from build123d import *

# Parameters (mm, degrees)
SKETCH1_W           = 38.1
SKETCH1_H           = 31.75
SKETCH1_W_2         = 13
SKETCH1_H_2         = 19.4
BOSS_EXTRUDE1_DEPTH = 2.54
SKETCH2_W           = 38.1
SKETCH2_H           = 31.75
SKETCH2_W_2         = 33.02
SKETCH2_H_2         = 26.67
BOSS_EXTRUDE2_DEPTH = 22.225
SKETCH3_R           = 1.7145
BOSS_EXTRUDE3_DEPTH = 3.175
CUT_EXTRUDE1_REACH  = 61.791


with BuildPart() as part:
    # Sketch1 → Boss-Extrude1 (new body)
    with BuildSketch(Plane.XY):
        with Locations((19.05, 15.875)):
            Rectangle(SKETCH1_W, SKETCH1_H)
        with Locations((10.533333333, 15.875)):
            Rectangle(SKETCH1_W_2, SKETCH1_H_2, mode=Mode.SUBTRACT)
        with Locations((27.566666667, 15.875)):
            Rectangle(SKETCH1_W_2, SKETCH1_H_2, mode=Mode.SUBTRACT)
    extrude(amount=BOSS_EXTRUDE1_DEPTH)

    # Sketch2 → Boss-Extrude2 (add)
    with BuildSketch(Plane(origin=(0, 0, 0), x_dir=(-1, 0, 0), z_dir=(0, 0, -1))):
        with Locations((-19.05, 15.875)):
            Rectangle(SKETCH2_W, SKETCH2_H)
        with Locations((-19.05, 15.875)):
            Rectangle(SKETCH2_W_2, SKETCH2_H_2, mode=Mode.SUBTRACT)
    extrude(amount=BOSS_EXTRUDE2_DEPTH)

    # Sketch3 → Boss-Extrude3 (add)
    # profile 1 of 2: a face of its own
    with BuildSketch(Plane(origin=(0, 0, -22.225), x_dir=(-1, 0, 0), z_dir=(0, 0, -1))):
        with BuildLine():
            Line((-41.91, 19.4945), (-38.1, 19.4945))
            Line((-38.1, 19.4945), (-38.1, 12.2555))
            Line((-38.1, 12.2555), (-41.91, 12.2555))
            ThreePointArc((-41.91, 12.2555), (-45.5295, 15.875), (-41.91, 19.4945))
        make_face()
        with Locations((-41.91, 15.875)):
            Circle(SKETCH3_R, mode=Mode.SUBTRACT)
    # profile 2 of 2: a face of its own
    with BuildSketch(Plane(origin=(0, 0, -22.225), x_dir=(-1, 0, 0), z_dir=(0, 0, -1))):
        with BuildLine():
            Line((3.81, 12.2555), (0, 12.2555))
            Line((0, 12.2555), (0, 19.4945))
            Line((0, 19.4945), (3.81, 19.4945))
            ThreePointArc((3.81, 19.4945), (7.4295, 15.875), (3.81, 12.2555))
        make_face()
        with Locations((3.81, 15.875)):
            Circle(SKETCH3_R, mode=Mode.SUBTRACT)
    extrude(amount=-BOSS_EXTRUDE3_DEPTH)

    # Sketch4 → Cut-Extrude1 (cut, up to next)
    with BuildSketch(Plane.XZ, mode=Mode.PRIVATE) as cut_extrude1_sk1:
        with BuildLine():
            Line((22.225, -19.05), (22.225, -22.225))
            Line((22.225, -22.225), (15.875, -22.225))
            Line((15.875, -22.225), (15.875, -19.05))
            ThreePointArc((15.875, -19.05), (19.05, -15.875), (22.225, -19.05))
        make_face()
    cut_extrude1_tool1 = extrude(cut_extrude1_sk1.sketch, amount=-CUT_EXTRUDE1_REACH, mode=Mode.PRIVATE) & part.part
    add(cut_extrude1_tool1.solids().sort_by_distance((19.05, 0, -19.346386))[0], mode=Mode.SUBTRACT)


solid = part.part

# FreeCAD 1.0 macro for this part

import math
import FreeCAD as App
import Part
import Sketcher

V = App.Vector
Q = App.Units.Quantity

doc = App.newDocument("Part")
body = doc.addObject("PartDesign::Body", "Body")

sketch1 = doc.addObject("Sketcher::SketchObject", "Sketch")
body.addObject(sketch1)
sketch1.AttachmentSupport = (doc.XY_Plane, [""])
sketch1.MapMode = "FlatFace"
sketch1.addGeometry([
    Part.LineSegment(V(0, 32, 0), V(0, 0, 0)),
    Part.LineSegment(V(0, 0, 0), V(38, 0, 0)),
    Part.LineSegment(V(38, 0, 0), V(38, 32, 0)),
    Part.LineSegment(V(38, 32, 0), V(0, 32, 0)),
    Part.LineSegment(V(17, 6, 0), V(4, 6, 0)),
    Part.LineSegment(V(4, 6, 0), V(4, 26, 0)),
    Part.LineSegment(V(4, 26, 0), V(17, 26, 0)),
    Part.LineSegment(V(17, 26, 0), V(17, 6, 0)),
    Part.LineSegment(V(34, 6, 0), V(21, 6, 0)),
    Part.LineSegment(V(21, 6, 0), V(21, 26, 0)),
    Part.LineSegment(V(21, 26, 0), V(34, 26, 0)),
    Part.LineSegment(V(34, 26, 0), V(34, 6, 0)),
], False)
sketch1.addConstraint([
    Sketcher.Constraint("Coincident", 0, 2, 1, 1),
    Sketcher.Constraint("Coincident", 1, 2, 2, 1),
    Sketcher.Constraint("Coincident", 2, 2, 3, 1),
    Sketcher.Constraint("Coincident", 3, 2, 0, 1),
    Sketcher.Constraint("Coincident", 4, 2, 5, 1),
    Sketcher.Constraint("Coincident", 5, 2, 6, 1),
    Sketcher.Constraint("Coincident", 6, 2, 7, 1),
    Sketcher.Constraint("Coincident", 7, 2, 4, 1),
    Sketcher.Constraint("Coincident", 8, 2, 9, 1),
    Sketcher.Constraint("Coincident", 9, 2, 10, 1),
    Sketcher.Constraint("Coincident", 10, 2, 11, 1),
    Sketcher.Constraint("Coincident", 11, 2, 8, 1),
    Sketcher.Constraint("Vertical", 0),
    Sketcher.Constraint("Horizontal", 1),
    Sketcher.Constraint("Vertical", 2),
    Sketcher.Constraint("Horizontal", 3),
    Sketcher.Constraint("Horizontal", 4),
    Sketcher.Constraint("Vertical", 5),
    Sketcher.Constraint("Horizontal", 6),
    Sketcher.Constraint("Vertical", 7),
    Sketcher.Constraint("Horizontal", 8),
    Sketcher.Constraint("Vertical", 9),
    Sketcher.Constraint("Horizontal", 10),
    Sketcher.Constraint("Vertical", 11),
    Sketcher.Constraint("Coincident", 0, 2, -1, 1),
    Sketcher.Constraint("Horizontal", 7, 2, 8, 2),
    Sketcher.Constraint("Horizontal", 6, 2, 9, 2),
    Sketcher.Constraint("Equal", 6, 8),
    Sketcher.Constraint("DistanceX", 1, 1, 1, 2, Q("1.5 in")),
    Sketcher.Constraint("DistanceY", 0, 2, 0, 1, Q("1.25 in")),
    Sketcher.Constraint("DistanceX", 4, 2, 4, 1, Q("13 mm")),
    Sketcher.Constraint("DistanceY", 5, 1, 5, 2, Q("19.4 mm")),
    Sketcher.Constraint("DistanceY", -1, 1, 4, 2, Q("6.175 mm")),
    Sketcher.Constraint("DistanceX", -1, 1, 4, 2, Q("4.033333 mm")),
    Sketcher.Constraint("DistanceX", -1, 1, 8, 2, Q("21.066667 mm")),
])
pad1 = doc.addObject("PartDesign::Pad", "Pad")
body.addObject(pad1)
pad1.Profile = sketch1
pad1.Length = Q("0.1 in")

sketch2 = doc.addObject("Sketcher::SketchObject", "Sketch001")
body.addObject(sketch2)
sketch2.AttachmentSupport = (doc.XY_Plane, [""])
sketch2.MapMode = "FlatFace"
sketch2.addGeometry([
    Part.LineSegment(V(38, 32, 0), V(38, 0, 0)),
    Part.LineSegment(V(38, 0, 0), V(0, 0, 0)),
    Part.LineSegment(V(0, 0, 0), V(0, 32, 0)),
    Part.LineSegment(V(0, 32, 0), V(38, 32, 0)),
    Part.LineSegment(V(3, 3, 0), V(36, 3, 0)),
    Part.LineSegment(V(36, 3, 0), V(36, 29, 0)),
    Part.LineSegment(V(36, 29, 0), V(3, 29, 0)),
    Part.LineSegment(V(3, 29, 0), V(3, 3, 0)),
], False)
sketch2.addConstraint([
    Sketcher.Constraint("Coincident", 0, 2, 1, 1),
    Sketcher.Constraint("Coincident", 1, 2, 2, 1),
    Sketcher.Constraint("Coincident", 2, 2, 3, 1),
    Sketcher.Constraint("Coincident", 3, 2, 0, 1),
    Sketcher.Constraint("Coincident", 4, 2, 5, 1),
    Sketcher.Constraint("Coincident", 5, 2, 6, 1),
    Sketcher.Constraint("Coincident", 6, 2, 7, 1),
    Sketcher.Constraint("Coincident", 7, 2, 4, 1),
    Sketcher.Constraint("Vertical", 0),
    Sketcher.Constraint("Horizontal", 1),
    Sketcher.Constraint("Vertical", 2),
    Sketcher.Constraint("Horizontal", 3),
    Sketcher.Constraint("Horizontal", 4),
    Sketcher.Constraint("Vertical", 5),
    Sketcher.Constraint("Horizontal", 6),
    Sketcher.Constraint("Vertical", 7),
    Sketcher.Constraint("Coincident", 1, 2, -1, 1),
    Sketcher.Constraint("DistanceX", 1, 2, 1, 1, Q("1.5 in")),
    Sketcher.Constraint("DistanceX", 4, 1, 4, 2, Q("1.3 in")),
    Sketcher.Constraint("DistanceY", 0, 2, 0, 1, Q("1.25 in")),
    Sketcher.Constraint("DistanceY", 5, 1, 5, 2, Q("1.05 in")),
    Sketcher.Constraint("DistanceX", -1, 1, 4, 2, Q("1.4 in")),
    Sketcher.Constraint("DistanceY", -1, 1, 4, 2, Q("0.1 in")),
])
pad2 = doc.addObject("PartDesign::Pad", "Pad001")
body.addObject(pad2)
pad2.Profile = sketch2
pad2.Length = Q("0.875 in")
pad2.Reversed = True

sketch3 = doc.addObject("Sketcher::SketchObject", "Sketch002")
body.addObject(sketch3)
sketch3.AttachmentSupport = (doc.XY_Plane, [""])
sketch3.MapMode = "FlatFace"
sketch3.AttachmentOffset = App.Placement(V(0, 0, -0.875 * 25.4), App.Rotation())
sketch3.addGeometry([
    Part.LineSegment(V(38.1, 19.5, 0), V(41.9, 19.5, 0)),
    Part.ArcOfCircle(Part.Circle(V(41.9, 15.9, 0), V(0, 0, 1), 3.6), math.radians(-90), math.radians(90)),
    Part.LineSegment(V(41.9, 12.3, 0), V(38.1, 12.3, 0)),
    Part.LineSegment(V(38.1, 12.3, 0), V(38.1, 19.5, 0)),
    Part.Circle(V(41.9, 15.9, 0), V(0, 0, 1), 1.7),
    Part.LineSegment(V(0, 12.3, 0), V(-3.8, 12.3, 0)),
    Part.ArcOfCircle(Part.Circle(V(-3.8, 15.9, 0), V(0, 0, 1), 3.6), math.radians(90), math.radians(270)),
    Part.LineSegment(V(-3.8, 19.5, 0), V(0, 19.5, 0)),
    Part.LineSegment(V(0, 19.5, 0), V(0, 12.3, 0)),
    Part.Circle(V(-3.8, 15.9, 0), V(0, 0, 1), 1.7),
], False)
sketch3.addConstraint([
    Sketcher.Constraint("Tangent", 0, 2, 1, 2),
    Sketcher.Constraint("Tangent", 1, 1, 2, 1),
    Sketcher.Constraint("Coincident", 2, 2, 3, 1),
    Sketcher.Constraint("Coincident", 3, 2, 0, 1),
    Sketcher.Constraint("Tangent", 5, 2, 6, 2),
    Sketcher.Constraint("Tangent", 6, 1, 7, 1),
    Sketcher.Constraint("Coincident", 7, 2, 8, 1),
    Sketcher.Constraint("Coincident", 8, 2, 5, 1),
    Sketcher.Constraint("Horizontal", 0),
    Sketcher.Constraint("Horizontal", 2),
    Sketcher.Constraint("Vertical", 3),
    Sketcher.Constraint("Horizontal", 5),
    Sketcher.Constraint("Horizontal", 7),
    Sketcher.Constraint("Vertical", 8),
    Sketcher.Constraint("Coincident", 4, 3, 1, 3),
    Sketcher.Constraint("Coincident", 9, 3, 6, 3),
    Sketcher.Constraint("Equal", 1, 6),
    Sketcher.Constraint("Equal", 4, 9),
    Sketcher.Constraint("PointOnObject", 7, 2, -2),
    Sketcher.Constraint("Horizontal", 4, 3, 6, 3),
    Sketcher.Constraint("Equal", 2, 5),
    Sketcher.Constraint("Diameter", 4, Q("0.135 in")),
    Sketcher.Constraint("DistanceX", 0, 1, 0, 2, Q("0.15 in")),
    Sketcher.Constraint("DistanceX", -1, 1, 2, 2, Q("1.5 in")),
    Sketcher.Constraint("Radius", 1, Q("0.1425 in")),
    Sketcher.Constraint("DistanceY", -1, 1, 1, 3, Q("0.625 in")),
])
pad3 = doc.addObject("PartDesign::Pad", "Pad002")
body.addObject(pad3)
pad3.Profile = sketch3
pad3.Length = Q("0.125 in")

sketch4 = doc.addObject("Sketcher::SketchObject", "Sketch003")
body.addObject(sketch4)
sketch4.AttachmentSupport = (doc.XZ_Plane, [""])
sketch4.MapMode = "FlatFace"
sketch4.addGeometry([
    Part.LineSegment(V(22.2, -22.2, 0), V(22.2, -19.1, 0)),
    Part.ArcOfCircle(Part.Circle(V(19.1, -19.1, 0), V(0, 0, 1), 3.2), math.radians(0), math.radians(180)),
    Part.LineSegment(V(15.9, -19.1, 0), V(15.9, -22.2, 0)),
    Part.LineSegment(V(15.9, -22.2, 0), V(22.2, -22.2, 0)),
], False)
sketch4.addConstraint([
    Sketcher.Constraint("Tangent", 0, 2, 1, 1),
    Sketcher.Constraint("Tangent", 1, 2, 2, 1),
    Sketcher.Constraint("Coincident", 2, 2, 3, 1),
    Sketcher.Constraint("Coincident", 3, 2, 0, 1),
    Sketcher.Constraint("Vertical", 0),
    Sketcher.Constraint("Vertical", 2),
    Sketcher.Constraint("Horizontal", 3),
    Sketcher.Constraint("Radius", 1, Q("0.125 in")),
    Sketcher.Constraint("DistanceY", 0, 1, 0, 2, Q("0.125 in")),
    Sketcher.Constraint("DistanceX", -1, 1, 1, 3, Q("0.75 in")),
    Sketcher.Constraint("DistanceY", 1, 3, -1, 1, Q("0.75 in")),
])
pocket1 = doc.addObject("PartDesign::Pocket", "Pocket")
body.addObject(pocket1)
pocket1.Profile = sketch4
pocket1.Type = "UpToFirst"

doc.recompute()
